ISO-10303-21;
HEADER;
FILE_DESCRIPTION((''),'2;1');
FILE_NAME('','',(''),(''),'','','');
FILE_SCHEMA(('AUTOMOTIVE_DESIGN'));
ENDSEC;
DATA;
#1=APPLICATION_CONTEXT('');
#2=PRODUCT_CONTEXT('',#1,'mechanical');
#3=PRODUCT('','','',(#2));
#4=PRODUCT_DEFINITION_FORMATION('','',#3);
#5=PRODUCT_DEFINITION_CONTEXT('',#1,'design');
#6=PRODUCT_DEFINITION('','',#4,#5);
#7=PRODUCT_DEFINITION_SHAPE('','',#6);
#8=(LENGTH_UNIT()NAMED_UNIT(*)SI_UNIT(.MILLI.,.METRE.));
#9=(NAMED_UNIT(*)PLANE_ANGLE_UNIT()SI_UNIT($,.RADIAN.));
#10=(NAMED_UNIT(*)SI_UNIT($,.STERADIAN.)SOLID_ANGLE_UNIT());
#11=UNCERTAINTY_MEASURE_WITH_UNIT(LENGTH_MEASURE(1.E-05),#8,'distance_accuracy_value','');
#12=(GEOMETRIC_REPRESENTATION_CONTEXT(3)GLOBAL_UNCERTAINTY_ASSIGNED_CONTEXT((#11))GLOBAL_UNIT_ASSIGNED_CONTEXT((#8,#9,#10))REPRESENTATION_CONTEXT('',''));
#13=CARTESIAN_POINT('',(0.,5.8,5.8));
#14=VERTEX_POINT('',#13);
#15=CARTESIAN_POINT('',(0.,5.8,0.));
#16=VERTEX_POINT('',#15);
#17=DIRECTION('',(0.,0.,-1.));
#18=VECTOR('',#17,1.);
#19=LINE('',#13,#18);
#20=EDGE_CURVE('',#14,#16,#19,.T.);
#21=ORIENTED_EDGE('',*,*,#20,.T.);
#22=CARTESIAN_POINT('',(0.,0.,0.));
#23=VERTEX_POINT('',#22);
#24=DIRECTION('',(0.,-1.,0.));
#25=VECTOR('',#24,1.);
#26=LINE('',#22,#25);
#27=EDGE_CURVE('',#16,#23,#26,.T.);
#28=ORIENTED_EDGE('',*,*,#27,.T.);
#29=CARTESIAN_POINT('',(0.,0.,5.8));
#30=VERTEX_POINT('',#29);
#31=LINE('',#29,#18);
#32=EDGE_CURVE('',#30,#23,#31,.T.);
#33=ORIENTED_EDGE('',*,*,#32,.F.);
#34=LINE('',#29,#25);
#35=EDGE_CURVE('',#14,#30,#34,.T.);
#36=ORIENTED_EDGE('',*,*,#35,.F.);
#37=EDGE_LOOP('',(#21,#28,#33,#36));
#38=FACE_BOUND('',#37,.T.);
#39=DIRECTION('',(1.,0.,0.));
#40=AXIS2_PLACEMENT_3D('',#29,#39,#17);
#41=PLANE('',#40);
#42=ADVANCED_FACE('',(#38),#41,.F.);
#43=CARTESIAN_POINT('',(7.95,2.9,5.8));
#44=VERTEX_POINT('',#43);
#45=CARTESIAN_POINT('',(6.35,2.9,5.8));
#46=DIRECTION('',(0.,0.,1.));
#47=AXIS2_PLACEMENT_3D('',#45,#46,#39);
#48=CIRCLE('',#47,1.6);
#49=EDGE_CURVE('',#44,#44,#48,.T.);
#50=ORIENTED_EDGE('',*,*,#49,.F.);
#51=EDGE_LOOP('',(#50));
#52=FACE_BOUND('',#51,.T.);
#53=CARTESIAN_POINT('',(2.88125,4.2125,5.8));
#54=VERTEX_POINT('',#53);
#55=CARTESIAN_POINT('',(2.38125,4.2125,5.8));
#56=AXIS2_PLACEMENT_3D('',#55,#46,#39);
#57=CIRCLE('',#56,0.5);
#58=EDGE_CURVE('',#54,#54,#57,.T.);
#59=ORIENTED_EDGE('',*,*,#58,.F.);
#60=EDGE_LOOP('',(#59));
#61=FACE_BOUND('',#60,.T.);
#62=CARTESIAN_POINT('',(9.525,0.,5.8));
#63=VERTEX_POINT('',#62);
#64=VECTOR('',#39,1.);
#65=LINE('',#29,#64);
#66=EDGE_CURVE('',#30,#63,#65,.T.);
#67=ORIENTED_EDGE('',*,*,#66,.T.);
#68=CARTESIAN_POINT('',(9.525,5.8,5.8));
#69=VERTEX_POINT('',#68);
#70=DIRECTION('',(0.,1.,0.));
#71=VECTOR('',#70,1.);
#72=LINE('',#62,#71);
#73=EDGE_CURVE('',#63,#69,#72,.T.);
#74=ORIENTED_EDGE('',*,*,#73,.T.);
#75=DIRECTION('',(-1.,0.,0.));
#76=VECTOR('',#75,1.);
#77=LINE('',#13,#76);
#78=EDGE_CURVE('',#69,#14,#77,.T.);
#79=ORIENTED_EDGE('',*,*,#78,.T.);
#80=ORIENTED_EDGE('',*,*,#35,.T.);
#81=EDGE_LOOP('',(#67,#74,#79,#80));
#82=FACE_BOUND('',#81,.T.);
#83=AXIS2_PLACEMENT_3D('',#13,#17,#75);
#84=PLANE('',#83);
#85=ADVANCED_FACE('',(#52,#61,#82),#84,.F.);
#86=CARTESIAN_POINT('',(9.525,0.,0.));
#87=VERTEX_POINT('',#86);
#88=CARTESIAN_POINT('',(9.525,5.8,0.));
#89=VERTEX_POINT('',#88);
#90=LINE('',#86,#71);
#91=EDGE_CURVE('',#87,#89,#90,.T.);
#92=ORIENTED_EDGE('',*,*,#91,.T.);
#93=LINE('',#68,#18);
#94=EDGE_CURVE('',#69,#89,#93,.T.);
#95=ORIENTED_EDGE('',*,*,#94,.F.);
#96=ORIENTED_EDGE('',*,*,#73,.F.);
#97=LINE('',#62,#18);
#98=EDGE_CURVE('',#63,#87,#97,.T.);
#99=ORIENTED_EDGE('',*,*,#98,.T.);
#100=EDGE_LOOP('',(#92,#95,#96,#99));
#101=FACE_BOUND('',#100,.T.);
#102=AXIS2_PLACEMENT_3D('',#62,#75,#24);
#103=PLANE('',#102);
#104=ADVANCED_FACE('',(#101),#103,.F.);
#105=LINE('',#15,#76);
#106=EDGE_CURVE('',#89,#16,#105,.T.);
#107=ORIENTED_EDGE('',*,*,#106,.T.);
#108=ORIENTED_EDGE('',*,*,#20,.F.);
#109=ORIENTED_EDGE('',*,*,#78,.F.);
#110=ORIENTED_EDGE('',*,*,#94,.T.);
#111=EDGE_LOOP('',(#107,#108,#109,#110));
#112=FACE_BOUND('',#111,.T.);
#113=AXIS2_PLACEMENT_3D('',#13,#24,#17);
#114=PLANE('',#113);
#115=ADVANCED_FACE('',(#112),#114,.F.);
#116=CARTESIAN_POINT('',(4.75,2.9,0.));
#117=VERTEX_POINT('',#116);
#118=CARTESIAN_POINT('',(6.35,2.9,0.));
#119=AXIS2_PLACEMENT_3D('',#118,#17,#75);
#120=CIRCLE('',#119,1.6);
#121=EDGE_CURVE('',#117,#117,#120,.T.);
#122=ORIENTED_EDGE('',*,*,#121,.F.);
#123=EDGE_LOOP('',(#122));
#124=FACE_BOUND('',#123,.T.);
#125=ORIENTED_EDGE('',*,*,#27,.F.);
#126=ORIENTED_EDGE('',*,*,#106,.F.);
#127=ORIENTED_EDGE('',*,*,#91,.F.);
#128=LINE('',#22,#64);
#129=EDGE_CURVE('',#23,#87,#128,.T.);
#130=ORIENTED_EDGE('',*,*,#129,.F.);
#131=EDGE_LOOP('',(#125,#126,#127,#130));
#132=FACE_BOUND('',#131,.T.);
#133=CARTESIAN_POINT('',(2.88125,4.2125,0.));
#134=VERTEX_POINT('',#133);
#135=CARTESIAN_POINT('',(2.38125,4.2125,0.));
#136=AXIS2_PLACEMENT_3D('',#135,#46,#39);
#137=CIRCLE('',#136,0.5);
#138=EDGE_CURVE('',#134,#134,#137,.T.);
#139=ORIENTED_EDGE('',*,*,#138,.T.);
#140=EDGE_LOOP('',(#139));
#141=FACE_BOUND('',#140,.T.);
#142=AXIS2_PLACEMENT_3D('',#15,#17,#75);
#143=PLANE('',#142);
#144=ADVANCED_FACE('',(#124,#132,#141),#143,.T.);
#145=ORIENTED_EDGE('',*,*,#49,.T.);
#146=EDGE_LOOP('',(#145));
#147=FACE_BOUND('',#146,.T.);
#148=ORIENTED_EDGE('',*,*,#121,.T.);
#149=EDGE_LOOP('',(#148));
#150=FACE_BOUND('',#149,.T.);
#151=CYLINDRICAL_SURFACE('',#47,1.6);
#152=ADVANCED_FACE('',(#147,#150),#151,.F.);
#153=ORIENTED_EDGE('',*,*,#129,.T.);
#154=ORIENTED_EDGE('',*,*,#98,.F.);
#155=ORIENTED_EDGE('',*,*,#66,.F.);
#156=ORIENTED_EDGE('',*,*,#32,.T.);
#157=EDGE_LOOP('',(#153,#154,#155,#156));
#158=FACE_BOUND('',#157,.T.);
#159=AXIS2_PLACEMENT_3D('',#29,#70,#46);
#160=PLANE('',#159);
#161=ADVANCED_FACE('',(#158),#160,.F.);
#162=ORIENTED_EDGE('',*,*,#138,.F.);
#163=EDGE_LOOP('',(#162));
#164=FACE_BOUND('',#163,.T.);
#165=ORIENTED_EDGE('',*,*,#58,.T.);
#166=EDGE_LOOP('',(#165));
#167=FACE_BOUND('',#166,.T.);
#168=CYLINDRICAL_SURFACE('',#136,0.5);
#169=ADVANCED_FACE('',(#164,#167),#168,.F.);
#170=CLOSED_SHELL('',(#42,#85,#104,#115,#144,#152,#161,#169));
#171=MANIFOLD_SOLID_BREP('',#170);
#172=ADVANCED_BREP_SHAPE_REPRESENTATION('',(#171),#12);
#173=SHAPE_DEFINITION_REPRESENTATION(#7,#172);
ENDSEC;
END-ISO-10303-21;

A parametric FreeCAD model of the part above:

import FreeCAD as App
import Part
import Sketcher
from FreeCAD import Vector


def add_polygon(sketch, points):
    """Adds a closed chain of lines whose ends are joined by coincident constraints."""
    first, n = sketch.GeometryCount, len(points)
    for a, b in zip(points, points[1:] + points[:1]):
        sketch.addGeometry(Part.LineSegment(App.Vector(*a, 0), App.Vector(*b, 0)), False)
    for i in range(n):
        sketch.addConstraint(Sketcher.Constraint("Coincident", first + i, 2, first + (i + 1) % n, 1))

doc = App.newDocument("Part")
body = doc.addObject("PartDesign::Body", "Body")

sketch1 = body.newObject("Sketcher::SketchObject", "Sketch")
sketch1.AttachmentSupport = (doc.getObject("XY_Plane"), [""])
sketch1.MapMode = "FlatFace"
add_polygon(sketch1, [(0, 6), (0, 0), (10, 0), (10, 6)])
sketch1.addConstraint([
    Sketcher.Constraint("Vertical", 0),
    Sketcher.Constraint("Horizontal", 1),
    Sketcher.Constraint("Vertical", 2),
    Sketcher.Constraint("Horizontal", 3),
    Sketcher.Constraint("Coincident", 0, 2, -1, 1),
    Sketcher.Constraint("DistanceY", 0, 2, 0, 1, 5.8),
    Sketcher.Constraint("DistanceX", 1, 1, 1, 2, 9.525),
])
pad1 = body.newObject("PartDesign::Pad", "Pad")
pad1.Profile = sketch1
pad1.Length = 5.8

sketch2 = body.newObject("Sketcher::SketchObject", "Sketch001")
sketch2.AttachmentSupport = (doc.getObject("XY_Plane"), [""])
sketch2.MapMode = "FlatFace"
sketch2.AttachmentOffset = App.Placement(Vector(0, 0, 5.8), App.Rotation())
sketch2.addGeometry(Part.Circle(Vector(6.3, 2.9, 0), Vector(0, 0, 1), 1.6), False)
sketch2.addConstraint([
    Sketcher.Constraint("Diameter", 0, 3.2),
    Sketcher.Constraint("DistanceY", -1, 1, 0, 3, 2.9),
    Sketcher.Constraint("DistanceX", -1, 1, 0, 3, 6.35),
])
doc.recompute()
hole = body.newObject("PartDesign::Hole", "Hole")
hole.Profile = sketch2
hole.ThreadType = "None"
hole.Diameter = 3.2
hole.DepthType = "Dimension"
hole.Depth = 12.7
hole.DrillPoint = "Angled"
hole.DrillPointAngle = 118

sketch3 = body.newObject("Sketcher::SketchObject", "Sketch002")
sketch3.AttachmentSupport = (doc.getObject("XY_Plane"), [""])
sketch3.MapMode = "FlatFace"
sketch3.AttachmentOffset = App.Placement(Vector(0, 0, 5.8), App.Rotation())
sketch3.addGeometry(Part.Circle(Vector(2.4, 4.2, 0), Vector(0, 0, 1), 0.5), False)
sketch3.addConstraint([
    Sketcher.Constraint("Diameter", 0, 1.0),
    Sketcher.Constraint("DistanceY", -1, 1, 0, 3, 4.2125),
    Sketcher.Constraint("DistanceX", -1, 1, 0, 3, 2.38125),
])
pocket1 = body.newObject("PartDesign::Pocket", "Pocket")
pocket1.Profile = sketch3
pocket1.Length = 5.8

doc.recompute()
